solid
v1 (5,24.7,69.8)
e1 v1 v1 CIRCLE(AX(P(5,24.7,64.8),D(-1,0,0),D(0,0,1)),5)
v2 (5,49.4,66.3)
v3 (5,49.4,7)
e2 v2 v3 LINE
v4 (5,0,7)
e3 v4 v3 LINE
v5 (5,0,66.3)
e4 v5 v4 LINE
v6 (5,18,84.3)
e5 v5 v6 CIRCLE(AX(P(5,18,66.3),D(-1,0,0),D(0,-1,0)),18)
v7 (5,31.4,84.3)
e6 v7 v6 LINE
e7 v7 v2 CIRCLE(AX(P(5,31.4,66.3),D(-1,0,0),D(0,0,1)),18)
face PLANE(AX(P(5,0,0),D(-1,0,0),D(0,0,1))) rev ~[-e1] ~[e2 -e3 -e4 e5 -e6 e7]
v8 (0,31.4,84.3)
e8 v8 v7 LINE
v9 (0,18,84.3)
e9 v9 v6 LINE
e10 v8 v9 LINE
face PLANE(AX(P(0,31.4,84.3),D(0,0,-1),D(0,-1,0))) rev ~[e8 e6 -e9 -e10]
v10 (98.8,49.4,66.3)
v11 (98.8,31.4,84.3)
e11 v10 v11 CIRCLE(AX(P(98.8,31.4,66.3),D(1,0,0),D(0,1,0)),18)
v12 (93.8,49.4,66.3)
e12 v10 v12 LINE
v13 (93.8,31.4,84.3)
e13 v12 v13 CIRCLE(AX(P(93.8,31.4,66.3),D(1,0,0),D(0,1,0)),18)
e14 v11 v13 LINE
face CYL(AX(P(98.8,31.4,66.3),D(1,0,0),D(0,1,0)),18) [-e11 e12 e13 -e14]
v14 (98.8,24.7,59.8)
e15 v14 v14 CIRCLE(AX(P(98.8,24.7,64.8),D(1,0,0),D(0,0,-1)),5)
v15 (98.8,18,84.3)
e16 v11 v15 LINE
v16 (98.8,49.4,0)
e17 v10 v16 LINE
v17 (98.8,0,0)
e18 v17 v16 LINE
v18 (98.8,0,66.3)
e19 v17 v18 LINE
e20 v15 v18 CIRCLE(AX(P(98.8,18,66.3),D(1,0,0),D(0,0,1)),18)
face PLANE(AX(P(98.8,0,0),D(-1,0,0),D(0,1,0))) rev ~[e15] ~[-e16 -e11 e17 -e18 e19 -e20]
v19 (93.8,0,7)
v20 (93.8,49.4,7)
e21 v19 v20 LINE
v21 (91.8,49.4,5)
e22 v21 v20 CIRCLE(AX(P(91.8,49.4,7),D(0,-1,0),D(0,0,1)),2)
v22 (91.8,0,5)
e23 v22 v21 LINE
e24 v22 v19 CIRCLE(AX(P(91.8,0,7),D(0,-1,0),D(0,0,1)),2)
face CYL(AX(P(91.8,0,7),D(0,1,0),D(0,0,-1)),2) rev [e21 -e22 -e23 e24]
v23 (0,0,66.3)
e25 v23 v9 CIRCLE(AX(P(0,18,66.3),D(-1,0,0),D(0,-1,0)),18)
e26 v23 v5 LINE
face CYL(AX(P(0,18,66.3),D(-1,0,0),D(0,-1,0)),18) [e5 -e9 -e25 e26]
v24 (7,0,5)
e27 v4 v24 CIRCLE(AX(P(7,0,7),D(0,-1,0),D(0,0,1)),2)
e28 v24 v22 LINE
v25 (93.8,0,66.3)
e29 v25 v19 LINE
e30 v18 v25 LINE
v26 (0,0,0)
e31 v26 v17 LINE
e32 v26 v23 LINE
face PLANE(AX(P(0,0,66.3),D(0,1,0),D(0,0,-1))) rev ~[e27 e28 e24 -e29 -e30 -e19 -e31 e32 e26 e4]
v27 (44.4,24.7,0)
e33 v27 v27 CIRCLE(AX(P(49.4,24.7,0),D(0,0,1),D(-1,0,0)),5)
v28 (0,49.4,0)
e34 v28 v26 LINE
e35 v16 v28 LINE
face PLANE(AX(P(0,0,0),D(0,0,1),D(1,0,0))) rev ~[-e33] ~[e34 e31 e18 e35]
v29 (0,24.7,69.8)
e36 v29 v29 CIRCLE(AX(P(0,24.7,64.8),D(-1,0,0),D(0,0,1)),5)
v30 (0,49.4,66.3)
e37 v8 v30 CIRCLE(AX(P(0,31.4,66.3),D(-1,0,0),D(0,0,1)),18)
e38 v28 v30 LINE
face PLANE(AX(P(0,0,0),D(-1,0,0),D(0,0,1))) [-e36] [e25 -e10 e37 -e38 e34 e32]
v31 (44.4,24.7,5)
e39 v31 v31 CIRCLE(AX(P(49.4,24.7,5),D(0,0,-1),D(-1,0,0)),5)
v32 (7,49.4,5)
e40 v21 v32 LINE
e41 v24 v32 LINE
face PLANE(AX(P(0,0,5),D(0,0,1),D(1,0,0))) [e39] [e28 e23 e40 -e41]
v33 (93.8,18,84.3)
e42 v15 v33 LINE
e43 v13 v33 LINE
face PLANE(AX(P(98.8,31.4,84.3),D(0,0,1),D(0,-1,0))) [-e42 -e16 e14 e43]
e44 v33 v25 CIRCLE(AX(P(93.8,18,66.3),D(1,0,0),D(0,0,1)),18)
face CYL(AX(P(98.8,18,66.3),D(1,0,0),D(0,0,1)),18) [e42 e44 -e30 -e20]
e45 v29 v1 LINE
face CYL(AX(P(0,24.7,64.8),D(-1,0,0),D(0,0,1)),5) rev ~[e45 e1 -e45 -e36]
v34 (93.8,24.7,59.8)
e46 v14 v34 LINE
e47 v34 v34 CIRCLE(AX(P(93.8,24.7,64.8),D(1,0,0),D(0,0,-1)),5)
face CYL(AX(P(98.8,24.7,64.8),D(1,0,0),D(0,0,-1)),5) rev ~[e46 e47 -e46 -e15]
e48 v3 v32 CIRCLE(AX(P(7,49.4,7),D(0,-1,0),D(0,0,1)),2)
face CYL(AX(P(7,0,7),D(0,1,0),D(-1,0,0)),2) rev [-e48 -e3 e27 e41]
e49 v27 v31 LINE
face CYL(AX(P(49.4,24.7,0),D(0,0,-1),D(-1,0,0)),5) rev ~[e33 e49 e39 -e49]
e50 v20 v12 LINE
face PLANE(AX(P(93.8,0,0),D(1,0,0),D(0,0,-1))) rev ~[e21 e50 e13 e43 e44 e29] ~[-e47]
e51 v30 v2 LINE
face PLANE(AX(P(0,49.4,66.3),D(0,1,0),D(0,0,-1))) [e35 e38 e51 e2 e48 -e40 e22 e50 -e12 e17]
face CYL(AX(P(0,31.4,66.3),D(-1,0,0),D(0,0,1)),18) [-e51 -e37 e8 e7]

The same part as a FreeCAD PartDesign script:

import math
import FreeCAD as App
import Part
import Sketcher
from FreeCAD import Vector
Q = App.Units.Quantity


def edges_at(feature, points):
    """Names of the edges that pass closest to the given points."""
    edges = feature.Shape.Edges
    near = lambda p: min(range(len(edges)), key=lambda i: edges[i].distToShape(Part.Vertex(*p))[0])
    return sorted({f"Edge{near(p) + 1}" for p in points})

doc = App.newDocument("Part")
body = doc.addObject("PartDesign::Body", "Body")

sketch1 = doc.addObject("Sketcher::SketchObject", "Sketch")
body.addObject(sketch1)
sketch1.AttachmentSupport = (doc.XY_Plane, [""])
sketch1.MapMode = "FlatFace"
sketch1.addGeometry(Part.LineSegment(Vector(0, 49, 0), Vector(0, 0, 0)), False)
sketch1.addGeometry(Part.LineSegment(Vector(0, 0, 0), Vector(99, 0, 0)), False)
sketch1.addGeometry(Part.LineSegment(Vector(99, 0, 0), Vector(99, 49, 0)), False)
sketch1.addGeometry(Part.LineSegment(Vector(99, 49, 0), Vector(0, 49, 0)), False)
sketch1.addConstraint(Sketcher.Constraint("Coincident", 0, 2, 1, 1))
sketch1.addConstraint(Sketcher.Constraint("Coincident", 1, 2, 2, 1))
sketch1.addConstraint(Sketcher.Constraint("Coincident", 2, 2, 3, 1))
sketch1.addConstraint(Sketcher.Constraint("Coincident", 3, 2, 0, 1))
sketch1.addConstraint(Sketcher.Constraint("Vertical", 0))
sketch1.addConstraint(Sketcher.Constraint("Horizontal", 1))
sketch1.addConstraint(Sketcher.Constraint("Vertical", 2))
sketch1.addConstraint(Sketcher.Constraint("Horizontal", 3))
sketch1.addConstraint(Sketcher.Constraint("Coincident", 0, 2, -1, 1))
sketch1.addConstraint(Sketcher.Constraint("DistanceX", 1, 1, 1, 2, Q("98.8 mm")))
sketch1.addConstraint(Sketcher.Constraint("DistanceY", 0, 2, 0, 1, Q("49.4 mm")))
pad1 = doc.addObject("PartDesign::Pad", "Pad")
body.addObject(pad1)
pad1.Profile = sketch1
pad1.Length = 5

sketch2 = doc.addObject("Sketcher::SketchObject", "Sketch001")
body.addObject(sketch2)
sketch2.AttachmentSupport = (doc.YZ_Plane, [""])
sketch2.MapMode = "FlatFace"
sketch2.AttachmentOffset = App.Placement(Vector(0, 0, 98.8), App.Rotation())
sketch2.addGeometry(Part.LineSegment(Vector(0, 5, 0), Vector(49, 5, 0)), False)
sketch2.addGeometry(Part.LineSegment(Vector(49, 5, 0), Vector(49, 66, 0)), False)
sketch2.addGeometry(Part.ArcOfCircle(Part.Circle(Vector(31, 66, 0), Vector(0, 0, 1), 18), math.radians(0), math.radians(90)), False)
sketch2.addGeometry(Part.LineSegment(Vector(31, 84, 0), Vector(18, 84, 0)), False)
sketch2.addGeometry(Part.ArcOfCircle(Part.Circle(Vector(18, 66, 0), Vector(0, 0, 1), 18), math.radians(90), math.radians(180)), False)
sketch2.addGeometry(Part.LineSegment(Vector(0, 66, 0), Vector(0, 5, 0)), False)
sketch2.addConstraint(Sketcher.Constraint("Coincident", 0, 2, 1, 1))
sketch2.addConstraint(Sketcher.Constraint("Tangent", 1, 2, 2, 1))
sketch2.addConstraint(Sketcher.Constraint("Tangent", 2, 2, 3, 1))
sketch2.addConstraint(Sketcher.Constraint("Tangent", 3, 2, 4, 1))
sketch2.addConstraint(Sketcher.Constraint("Tangent", 4, 2, 5, 1))
sketch2.addConstraint(Sketcher.Constraint("Coincident", 5, 2, 0, 1))
sketch2.addConstraint(Sketcher.Constraint("Horizontal", 0))
sketch2.addConstraint(Sketcher.Constraint("Vertical", 1))
sketch2.addConstraint(Sketcher.Constraint("Horizontal", 3))
sketch2.addConstraint(Sketcher.Constraint("Vertical", 5))
sketch2.addConstraint(Sketcher.Constraint("Equal", 2, 4))
sketch2.addConstraint(Sketcher.Constraint("PointOnObject", 4, 2, -2))
sketch2.addConstraint(Sketcher.Constraint("Radius", 2, Q("18 mm")))
sketch2.addConstraint(Sketcher.Constraint("DistanceX", 0, 1, 0, 2, Q("49.4 mm")))
sketch2.addConstraint(Sketcher.Constraint("DistanceY", 0, 2, 2, 2, Q("79.3 mm")))
sketch2.addConstraint(Sketcher.Constraint("DistanceY", -1, 1, 0, 2, Q("5 mm")))
pad2 = doc.addObject("PartDesign::Pad", "Pad001")
body.addObject(pad2)
pad2.Profile = sketch2
pad2.Length = 5
pad2.Reversed = True

sketch3 = doc.addObject("Sketcher::SketchObject", "Sketch002")
body.addObject(sketch3)
sketch3.AttachmentSupport = (doc.YZ_Plane, [""])
sketch3.MapMode = "FlatFace"
sketch3.addGeometry(Part.ArcOfCircle(Part.Circle(Vector(31, 66, 0), Vector(0, 0, 1), 18), math.radians(0), math.radians(90)), False)
sketch3.addGeometry(Part.LineSegment(Vector(49, 66, 0), Vector(49, 5, 0)), False)
sketch3.addGeometry(Part.LineSegment(Vector(49, 5, 0), Vector(0, 5, 0)), False)
sketch3.addGeometry(Part.LineSegment(Vector(0, 5, 0), Vector(0, 66, 0)), False)
sketch3.addGeometry(Part.ArcOfCircle(Part.Circle(Vector(18, 66, 0), Vector(0, 0, 1), 18), math.radians(90), math.radians(180)), False)
sketch3.addGeometry(Part.LineSegment(Vector(18, 84, 0), Vector(31, 84, 0)), False)
sketch3.addConstraint(Sketcher.Constraint("Tangent", 0, 1, 1, 1))
sketch3.addConstraint(Sketcher.Constraint("Coincident", 1, 2, 2, 1))
sketch3.addConstraint(Sketcher.Constraint("Coincident", 2, 2, 3, 1))
sketch3.addConstraint(Sketcher.Constraint("Tangent", 3, 2, 4, 2))
sketch3.addConstraint(Sketcher.Constraint("Tangent", 4, 1, 5, 1))
sketch3.addConstraint(Sketcher.Constraint("Tangent", 5, 2, 0, 2))
sketch3.addConstraint(Sketcher.Constraint("Vertical", 1))
sketch3.addConstraint(Sketcher.Constraint("Horizontal", 2))
sketch3.addConstraint(Sketcher.Constraint("Vertical", 3))
sketch3.addConstraint(Sketcher.Constraint("Horizontal", 5))
sketch3.addConstraint(Sketcher.Constraint("Equal", 0, 4))
sketch3.addConstraint(Sketcher.Constraint("PointOnObject", 2, 2, -2))
sketch3.addConstraint(Sketcher.Constraint("Radius", 0, Q("18 mm")))
sketch3.addConstraint(Sketcher.Constraint("DistanceX", 2, 2, 2, 1, Q("49.4 mm")))
sketch3.addConstraint(Sketcher.Constraint("DistanceY", 2, 2, 4, 1, Q("79.3 mm")))
sketch3.addConstraint(Sketcher.Constraint("DistanceY", -1, 1, 1, 2, Q("5 mm")))
pad3 = doc.addObject("PartDesign::Pad", "Pad002")
body.addObject(pad3)
pad3.Profile = sketch3
pad3.Length = 5

sketch4 = doc.addObject("Sketcher::SketchObject", "Sketch003")
body.addObject(sketch4)
sketch4.AttachmentSupport = (doc.YZ_Plane, [""])
sketch4.MapMode = "FlatFace"
sketch4.addGeometry(Part.Circle(Vector(25, 65, 0), Vector(0, 0, 1), 5), False)
sketch4.addConstraint(Sketcher.Constraint("Diameter", 0, Q("10 mm")))
sketch4.addConstraint(Sketcher.Constraint("DistanceX", -1, 1, 0, 3, Q("24.7 mm")))
sketch4.addConstraint(Sketcher.Constraint("DistanceY", -1, 1, 0, 3, Q("64.8 mm")))
pocket1 = doc.addObject("PartDesign::Pocket", "Pocket")
body.addObject(pocket1)
pocket1.Profile = sketch4
pocket1.Length = 5
pocket1.Reversed = True

sketch5 = doc.addObject("Sketcher::SketchObject", "Sketch004")
body.addObject(sketch5)
sketch5.AttachmentSupport = (doc.YZ_Plane, [""])
sketch5.MapMode = "FlatFace"
sketch5.AttachmentOffset = App.Placement(Vector(0, 0, 98.8), App.Rotation())
sketch5.addGeometry(Part.Circle(Vector(25, 65, 0), Vector(0, 0, 1), 5), False)
sketch5.addConstraint(Sketcher.Constraint("Diameter", 0, Q("10 mm")))
sketch5.addConstraint(Sketcher.Constraint("DistanceX", -1, 1, 0, 3, Q("24.7 mm")))
sketch5.addConstraint(Sketcher.Constraint("DistanceY", -1, 1, 0, 3, Q("64.8 mm")))
pocket2 = doc.addObject("PartDesign::Pocket", "Pocket001")
body.addObject(pocket2)
pocket2.Profile = sketch5
pocket2.Length = 5

sketch6 = doc.addObject("Sketcher::SketchObject", "Sketch005")
body.addObject(sketch6)
sketch6.AttachmentSupport = (doc.XY_Plane, [""])
sketch6.MapMode = "FlatFace"
sketch6.addGeometry(Part.Circle(Vector(49, 25, 0), Vector(0, 0, 1), 5), False)
sketch6.addConstraint(Sketcher.Constraint("Diameter", 0, Q("10 mm")))
sketch6.addConstraint(Sketcher.Constraint("DistanceX", -1, 1, 0, 3, Q("49.4 mm")))
sketch6.addConstraint(Sketcher.Constraint("DistanceY", -1, 1, 0, 3, Q("24.7 mm")))
pocket3 = doc.addObject("PartDesign::Pocket", "Pocket002")
body.addObject(pocket3)
pocket3.Profile = sketch6
pocket3.Length = 5
pocket3.Reversed = True
doc.recompute()

fillet = doc.addObject("PartDesign::Fillet", "Fillet")
body.addObject(fillet)
fillet.Base = (pocket3, edges_at(pocket3, [(93.8, 24.7, 5), (5, 24.7, 5)]))
fillet.Radius = 2

doc.recompute()
